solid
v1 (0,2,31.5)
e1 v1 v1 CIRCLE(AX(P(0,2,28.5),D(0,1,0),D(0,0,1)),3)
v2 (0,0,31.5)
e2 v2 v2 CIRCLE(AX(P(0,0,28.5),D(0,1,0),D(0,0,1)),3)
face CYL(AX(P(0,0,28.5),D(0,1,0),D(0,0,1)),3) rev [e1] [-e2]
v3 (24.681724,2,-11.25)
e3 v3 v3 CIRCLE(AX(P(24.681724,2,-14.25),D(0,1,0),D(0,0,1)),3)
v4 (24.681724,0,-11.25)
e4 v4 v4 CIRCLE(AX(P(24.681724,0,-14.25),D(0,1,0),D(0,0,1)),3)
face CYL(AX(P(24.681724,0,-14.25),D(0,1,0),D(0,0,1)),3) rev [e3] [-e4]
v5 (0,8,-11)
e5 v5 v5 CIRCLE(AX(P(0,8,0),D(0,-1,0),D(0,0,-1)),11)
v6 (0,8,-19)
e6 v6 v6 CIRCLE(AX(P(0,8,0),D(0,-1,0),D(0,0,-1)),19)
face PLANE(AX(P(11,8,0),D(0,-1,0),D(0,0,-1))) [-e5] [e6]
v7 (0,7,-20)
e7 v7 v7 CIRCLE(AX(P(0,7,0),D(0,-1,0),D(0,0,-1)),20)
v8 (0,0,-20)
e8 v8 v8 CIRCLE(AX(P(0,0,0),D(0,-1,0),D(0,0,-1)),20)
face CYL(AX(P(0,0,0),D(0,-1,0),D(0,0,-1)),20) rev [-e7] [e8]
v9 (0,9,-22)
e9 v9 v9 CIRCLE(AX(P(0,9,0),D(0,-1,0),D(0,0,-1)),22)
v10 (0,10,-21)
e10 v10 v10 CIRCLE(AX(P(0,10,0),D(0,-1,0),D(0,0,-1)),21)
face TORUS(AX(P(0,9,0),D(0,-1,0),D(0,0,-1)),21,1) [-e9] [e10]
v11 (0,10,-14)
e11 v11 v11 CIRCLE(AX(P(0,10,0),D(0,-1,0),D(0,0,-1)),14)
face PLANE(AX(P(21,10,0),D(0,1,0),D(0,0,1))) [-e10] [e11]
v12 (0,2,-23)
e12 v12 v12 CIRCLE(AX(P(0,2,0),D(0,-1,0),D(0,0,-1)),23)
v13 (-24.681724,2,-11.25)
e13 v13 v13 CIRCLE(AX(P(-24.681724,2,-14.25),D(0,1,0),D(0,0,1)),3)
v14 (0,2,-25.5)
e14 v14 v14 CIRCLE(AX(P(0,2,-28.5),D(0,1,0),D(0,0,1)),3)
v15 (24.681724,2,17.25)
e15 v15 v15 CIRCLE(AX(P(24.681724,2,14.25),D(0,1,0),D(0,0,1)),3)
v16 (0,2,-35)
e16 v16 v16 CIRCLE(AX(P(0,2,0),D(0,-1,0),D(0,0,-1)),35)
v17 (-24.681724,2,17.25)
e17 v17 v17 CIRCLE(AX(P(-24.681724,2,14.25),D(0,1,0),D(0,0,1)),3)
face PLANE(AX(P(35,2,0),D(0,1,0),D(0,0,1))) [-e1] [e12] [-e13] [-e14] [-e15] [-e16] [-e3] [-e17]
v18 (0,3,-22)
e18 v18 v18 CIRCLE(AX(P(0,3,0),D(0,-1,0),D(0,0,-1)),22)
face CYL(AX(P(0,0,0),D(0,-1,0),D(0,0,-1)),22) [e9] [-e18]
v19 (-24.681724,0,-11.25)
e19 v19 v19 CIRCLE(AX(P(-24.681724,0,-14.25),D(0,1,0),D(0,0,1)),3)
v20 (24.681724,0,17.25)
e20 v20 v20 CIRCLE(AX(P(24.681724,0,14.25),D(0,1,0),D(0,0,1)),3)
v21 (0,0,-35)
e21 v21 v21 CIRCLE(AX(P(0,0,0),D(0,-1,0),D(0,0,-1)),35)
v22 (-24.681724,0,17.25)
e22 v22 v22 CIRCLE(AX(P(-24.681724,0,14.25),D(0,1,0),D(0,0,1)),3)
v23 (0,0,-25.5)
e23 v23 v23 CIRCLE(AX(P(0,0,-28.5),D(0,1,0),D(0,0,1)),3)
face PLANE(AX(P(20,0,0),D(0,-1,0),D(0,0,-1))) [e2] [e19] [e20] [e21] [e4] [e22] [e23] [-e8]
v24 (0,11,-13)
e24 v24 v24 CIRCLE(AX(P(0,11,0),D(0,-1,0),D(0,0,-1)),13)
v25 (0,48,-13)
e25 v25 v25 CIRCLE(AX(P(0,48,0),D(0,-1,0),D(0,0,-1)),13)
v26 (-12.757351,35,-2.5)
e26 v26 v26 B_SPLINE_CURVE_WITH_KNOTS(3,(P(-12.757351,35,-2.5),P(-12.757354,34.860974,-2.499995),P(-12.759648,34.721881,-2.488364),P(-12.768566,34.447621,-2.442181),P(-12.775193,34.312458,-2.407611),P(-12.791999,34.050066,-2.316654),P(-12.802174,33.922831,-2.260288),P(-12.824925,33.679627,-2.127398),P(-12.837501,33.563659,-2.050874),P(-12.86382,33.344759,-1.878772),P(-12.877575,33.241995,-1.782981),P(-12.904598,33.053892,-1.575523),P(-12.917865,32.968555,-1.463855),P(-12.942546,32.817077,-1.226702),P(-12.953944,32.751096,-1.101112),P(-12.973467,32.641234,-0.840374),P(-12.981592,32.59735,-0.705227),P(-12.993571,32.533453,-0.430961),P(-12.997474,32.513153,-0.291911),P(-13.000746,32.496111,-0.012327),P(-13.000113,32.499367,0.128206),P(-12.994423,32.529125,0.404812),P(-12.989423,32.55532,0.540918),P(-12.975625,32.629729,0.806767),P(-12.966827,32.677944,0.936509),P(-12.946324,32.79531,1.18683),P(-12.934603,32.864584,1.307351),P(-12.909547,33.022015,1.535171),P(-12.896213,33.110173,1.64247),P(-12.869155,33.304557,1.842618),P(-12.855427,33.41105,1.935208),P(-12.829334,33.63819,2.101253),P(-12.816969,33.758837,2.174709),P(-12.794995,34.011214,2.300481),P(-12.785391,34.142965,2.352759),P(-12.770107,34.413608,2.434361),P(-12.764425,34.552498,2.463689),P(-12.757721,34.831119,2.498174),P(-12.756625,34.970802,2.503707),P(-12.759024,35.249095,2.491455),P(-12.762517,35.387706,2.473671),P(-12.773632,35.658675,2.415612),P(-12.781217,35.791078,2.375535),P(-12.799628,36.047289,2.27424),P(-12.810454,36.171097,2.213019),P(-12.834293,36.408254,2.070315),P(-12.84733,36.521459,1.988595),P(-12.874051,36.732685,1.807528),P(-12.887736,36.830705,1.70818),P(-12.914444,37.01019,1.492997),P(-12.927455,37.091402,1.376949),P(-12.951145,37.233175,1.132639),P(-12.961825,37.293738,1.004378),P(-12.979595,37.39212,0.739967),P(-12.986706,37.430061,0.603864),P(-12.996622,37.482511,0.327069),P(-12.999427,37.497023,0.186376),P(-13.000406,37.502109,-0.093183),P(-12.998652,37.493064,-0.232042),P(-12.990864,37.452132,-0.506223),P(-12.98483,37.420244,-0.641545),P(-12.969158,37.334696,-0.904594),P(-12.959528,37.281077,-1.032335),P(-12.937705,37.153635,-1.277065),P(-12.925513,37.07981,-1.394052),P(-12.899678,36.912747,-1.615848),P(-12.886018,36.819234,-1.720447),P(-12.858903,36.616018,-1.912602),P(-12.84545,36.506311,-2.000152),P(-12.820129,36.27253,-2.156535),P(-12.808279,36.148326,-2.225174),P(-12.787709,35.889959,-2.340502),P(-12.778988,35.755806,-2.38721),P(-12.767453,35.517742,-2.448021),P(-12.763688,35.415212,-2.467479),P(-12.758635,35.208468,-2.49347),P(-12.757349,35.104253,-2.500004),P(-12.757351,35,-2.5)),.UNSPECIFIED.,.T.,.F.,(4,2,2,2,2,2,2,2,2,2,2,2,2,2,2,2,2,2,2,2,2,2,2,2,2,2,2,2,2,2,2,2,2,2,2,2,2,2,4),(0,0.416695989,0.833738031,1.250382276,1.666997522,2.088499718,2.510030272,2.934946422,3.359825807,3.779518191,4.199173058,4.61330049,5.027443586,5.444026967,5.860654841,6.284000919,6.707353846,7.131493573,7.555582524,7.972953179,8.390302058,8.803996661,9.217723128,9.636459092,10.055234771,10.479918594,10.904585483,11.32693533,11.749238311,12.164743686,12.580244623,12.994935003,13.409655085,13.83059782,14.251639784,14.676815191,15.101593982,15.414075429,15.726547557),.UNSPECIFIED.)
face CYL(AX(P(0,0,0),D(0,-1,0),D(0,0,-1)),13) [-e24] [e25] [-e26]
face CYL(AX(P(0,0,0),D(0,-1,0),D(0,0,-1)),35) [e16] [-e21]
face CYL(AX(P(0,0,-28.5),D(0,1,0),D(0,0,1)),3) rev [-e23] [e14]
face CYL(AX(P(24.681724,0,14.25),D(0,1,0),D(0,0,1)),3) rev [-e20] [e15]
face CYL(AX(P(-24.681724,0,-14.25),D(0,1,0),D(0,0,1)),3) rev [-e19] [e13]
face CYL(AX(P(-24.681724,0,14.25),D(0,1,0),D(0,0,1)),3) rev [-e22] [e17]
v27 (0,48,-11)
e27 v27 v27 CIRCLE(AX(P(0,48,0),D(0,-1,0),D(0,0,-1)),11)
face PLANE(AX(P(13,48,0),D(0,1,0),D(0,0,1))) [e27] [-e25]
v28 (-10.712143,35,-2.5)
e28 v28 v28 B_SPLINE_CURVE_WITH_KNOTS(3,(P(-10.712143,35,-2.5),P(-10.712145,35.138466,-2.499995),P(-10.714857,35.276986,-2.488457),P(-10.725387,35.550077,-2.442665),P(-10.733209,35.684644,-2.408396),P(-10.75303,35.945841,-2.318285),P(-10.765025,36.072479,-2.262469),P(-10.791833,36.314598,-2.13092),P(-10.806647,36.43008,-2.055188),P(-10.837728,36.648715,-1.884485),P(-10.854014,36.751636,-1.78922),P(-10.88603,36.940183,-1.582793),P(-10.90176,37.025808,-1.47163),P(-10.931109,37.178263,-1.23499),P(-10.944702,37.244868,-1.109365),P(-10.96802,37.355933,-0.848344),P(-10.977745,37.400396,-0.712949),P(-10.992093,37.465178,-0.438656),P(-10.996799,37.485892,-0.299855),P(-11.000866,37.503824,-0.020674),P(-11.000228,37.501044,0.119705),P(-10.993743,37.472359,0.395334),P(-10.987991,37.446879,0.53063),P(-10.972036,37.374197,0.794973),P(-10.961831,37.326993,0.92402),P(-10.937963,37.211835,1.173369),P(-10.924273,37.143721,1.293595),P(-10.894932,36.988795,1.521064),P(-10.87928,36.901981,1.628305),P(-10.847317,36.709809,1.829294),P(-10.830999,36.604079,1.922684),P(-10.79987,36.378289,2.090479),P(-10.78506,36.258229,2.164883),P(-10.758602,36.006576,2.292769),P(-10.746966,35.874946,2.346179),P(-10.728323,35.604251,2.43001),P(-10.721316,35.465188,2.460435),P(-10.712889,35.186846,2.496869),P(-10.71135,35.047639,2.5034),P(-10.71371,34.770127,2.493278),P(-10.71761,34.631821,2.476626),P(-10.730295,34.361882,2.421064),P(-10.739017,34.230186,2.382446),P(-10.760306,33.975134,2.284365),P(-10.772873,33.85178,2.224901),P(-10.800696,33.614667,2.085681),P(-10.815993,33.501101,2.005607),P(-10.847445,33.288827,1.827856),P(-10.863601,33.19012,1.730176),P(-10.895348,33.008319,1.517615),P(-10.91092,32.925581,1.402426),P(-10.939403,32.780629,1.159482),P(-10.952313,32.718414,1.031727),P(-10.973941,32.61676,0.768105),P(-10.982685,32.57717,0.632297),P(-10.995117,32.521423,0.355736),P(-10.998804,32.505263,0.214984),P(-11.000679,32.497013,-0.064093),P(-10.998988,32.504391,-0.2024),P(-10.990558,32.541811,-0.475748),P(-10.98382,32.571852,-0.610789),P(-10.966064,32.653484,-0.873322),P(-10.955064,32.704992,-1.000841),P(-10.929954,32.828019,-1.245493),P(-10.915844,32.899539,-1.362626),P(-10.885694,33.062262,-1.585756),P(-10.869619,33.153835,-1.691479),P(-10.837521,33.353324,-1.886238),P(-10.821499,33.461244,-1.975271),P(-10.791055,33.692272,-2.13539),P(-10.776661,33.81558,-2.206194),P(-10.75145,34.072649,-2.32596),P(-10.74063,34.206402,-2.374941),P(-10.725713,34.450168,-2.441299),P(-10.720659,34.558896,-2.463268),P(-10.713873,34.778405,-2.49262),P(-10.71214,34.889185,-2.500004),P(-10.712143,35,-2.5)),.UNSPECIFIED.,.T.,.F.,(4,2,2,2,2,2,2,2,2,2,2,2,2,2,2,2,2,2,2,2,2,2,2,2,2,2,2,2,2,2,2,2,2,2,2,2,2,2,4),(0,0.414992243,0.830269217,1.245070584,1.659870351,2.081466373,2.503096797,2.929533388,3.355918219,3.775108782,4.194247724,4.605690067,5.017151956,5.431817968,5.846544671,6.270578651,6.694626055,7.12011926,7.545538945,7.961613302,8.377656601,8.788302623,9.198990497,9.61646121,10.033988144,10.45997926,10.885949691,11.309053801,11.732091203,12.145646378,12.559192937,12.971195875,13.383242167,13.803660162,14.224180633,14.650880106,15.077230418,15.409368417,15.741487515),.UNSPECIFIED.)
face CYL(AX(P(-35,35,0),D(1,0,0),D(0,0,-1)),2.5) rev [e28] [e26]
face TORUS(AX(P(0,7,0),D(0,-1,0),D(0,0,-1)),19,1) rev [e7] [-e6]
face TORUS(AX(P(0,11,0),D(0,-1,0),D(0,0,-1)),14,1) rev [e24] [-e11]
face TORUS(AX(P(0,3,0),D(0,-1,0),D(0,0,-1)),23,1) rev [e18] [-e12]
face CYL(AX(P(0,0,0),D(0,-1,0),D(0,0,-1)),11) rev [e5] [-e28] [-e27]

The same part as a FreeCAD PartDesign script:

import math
import FreeCAD as App
import Part
import Sketcher
from FreeCAD import Vector
Q = App.Units.Quantity

doc = App.newDocument("Part")
params = doc.addObject("Spreadsheet::Sheet", "Params")
for row, (alias, value) in enumerate([
    ("sketch1_radius", "1 mm"),
    ("sketch1_width", "15 mm"),
    ("sketch1_width2", "12 mm"),
    ("sketch1_width3", "7 mm"),
    ("sketch1_width4", "2 mm"),
    ("revolution_angle", "360 deg"),
    ("sketch2_diameter", "6 mm"),
    ("sketch3_diameter", "5 mm"),
], start=1):
    params.set(f"A{row}", alias)
    params.set(f"B{row}", "=" + value)
    params.setAlias(f"B{row}", alias)

body = doc.addObject("PartDesign::Body", "Body")

sketch1 = doc.addObject("Sketcher::SketchObject", "Sketch")
body.addObject(sketch1)
sketch1.AttachmentSupport = (doc.XY_Plane, [""])
sketch1.MapMode = "FlatFace"
sketch1.addGeometry([
    Part.LineSegment(Vector(20, 0, 0), Vector(35, 0, 0)),
    Part.LineSegment(Vector(35, 0, 0), Vector(35, 2, 0)),
    Part.LineSegment(Vector(35, 2, 0), Vector(23, 2, 0)),
    Part.ArcOfCircle(Part.Circle(Vector(23, 3, 0), Vector(0, 0, 1), 1), math.radians(-180), math.radians(-90)),
    Part.LineSegment(Vector(22, 3, 0), Vector(22, 9, 0)),
    Part.ArcOfCircle(Part.Circle(Vector(21, 9, 0), Vector(0, 0, 1), 1), math.radians(0), math.radians(90)),
    Part.LineSegment(Vector(21, 10, 0), Vector(14, 10, 0)),
    Part.ArcOfCircle(Part.Circle(Vector(14, 11, 0), Vector(0, 0, 1), 1), math.radians(-180), math.radians(-90)),
    Part.LineSegment(Vector(13, 11, 0), Vector(13, 48, 0)),
    Part.LineSegment(Vector(13, 48, 0), Vector(11, 48, 0)),
    Part.LineSegment(Vector(11, 48, 0), Vector(11, 8, 0)),
    Part.LineSegment(Vector(11, 8, 0), Vector(19, 8, 0)),
    Part.ArcOfCircle(Part.Circle(Vector(19, 7, 0), Vector(0, 0, 1), 1), math.radians(0), math.radians(90)),
    Part.LineSegment(Vector(20, 7, 0), Vector(20, 0, 0)),
], False)
sketch1.addConstraint([
    Sketcher.Constraint("Coincident", 0, 2, 1, 1),
    Sketcher.Constraint("Coincident", 1, 2, 2, 1),
    Sketcher.Constraint("Tangent", 2, 2, 3, 2),
    Sketcher.Constraint("Tangent", 3, 1, 4, 1),
    Sketcher.Constraint("Tangent", 4, 2, 5, 1),
    Sketcher.Constraint("Tangent", 5, 2, 6, 1),
    Sketcher.Constraint("Tangent", 6, 2, 7, 2),
    Sketcher.Constraint("Tangent", 7, 1, 8, 1),
    Sketcher.Constraint("Coincident", 8, 2, 9, 1),
    Sketcher.Constraint("Coincident", 9, 2, 10, 1),
    Sketcher.Constraint("Coincident", 10, 2, 11, 1),
    Sketcher.Constraint("Tangent", 11, 2, 12, 2),
    Sketcher.Constraint("Tangent", 12, 1, 13, 1),
    Sketcher.Constraint("Coincident", 13, 2, 0, 1),
    Sketcher.Constraint("Horizontal", 0),
    Sketcher.Constraint("Vertical", 1),
    Sketcher.Constraint("Horizontal", 2),
    Sketcher.Constraint("Vertical", 4),
    Sketcher.Constraint("Horizontal", 6),
    Sketcher.Constraint("Vertical", 8),
    Sketcher.Constraint("Horizontal", 9),
    Sketcher.Constraint("Vertical", 10),
    Sketcher.Constraint("Horizontal", 11),
    Sketcher.Constraint("Vertical", 13),
    Sketcher.Constraint("Equal", 3, 5),
    Sketcher.Constraint("Equal", 5, 7),
    Sketcher.Constraint("Equal", 7, 12),
    Sketcher.Constraint("PointOnObject", 0, 2, -1),
    Sketcher.Constraint("Equal", 9, 1),
    Sketcher.Constraint("Equal", 6, 13),
    Sketcher.Constraint("Radius", 3, Q("1 mm")),
    Sketcher.Constraint("DistanceX", 0, 1, 0, 2, Q("15 mm")),
    Sketcher.Constraint("DistanceX", 2, 2, 2, 1, Q("12 mm")),
    Sketcher.Constraint("DistanceX", 6, 2, 6, 1, Q("7 mm")),
    Sketcher.Constraint("DistanceX", 9, 2, 9, 1, Q("2 mm")),
    Sketcher.Constraint("DistanceY", 4, 1, 4, 2, Q("6 mm")),
    Sketcher.Constraint("DistanceY", 8, 1, 8, 2, Q("37 mm")),
    Sketcher.Constraint("DistanceX", -1, 1, 3, 3, Q("23 mm")),
])
sketch1.setExpression("Constraints[30]", "Params.sketch1_radius")
sketch1.setExpression("Constraints[31]", "Params.sketch1_width")
sketch1.setExpression("Constraints[32]", "Params.sketch1_width2")
sketch1.setExpression("Constraints[33]", "Params.sketch1_width3")
sketch1.setExpression("Constraints[34]", "Params.sketch1_width4")
revolution = doc.addObject("PartDesign::Revolution", "Revolution")
body.addObject(revolution)
revolution.Profile = sketch1
revolution.ReferenceAxis = (sketch1, ["V_Axis"])
revolution.setExpression("Angle", "Params.revolution_angle")

sketch2 = doc.addObject("Sketcher::SketchObject", "Sketch001")
body.addObject(sketch2)
sketch2.AttachmentSupport = (doc.XZ_Plane, [""])
sketch2.MapMode = "FlatFace"
sketch2.AttachmentOffset = App.Placement(Vector(0, 0, -2), App.Rotation())
sketch2.addGeometry([
    Part.Circle(Vector(0, -28.5, 0), Vector(0, 0, 1), 3),
    Part.Circle(Vector(24.681724, -14.25, 0), Vector(0, 0, 1), 3),
    Part.Circle(Vector(24.681724, 14.25, 0), Vector(0, 0, 1), 3),
    Part.Circle(Vector(0, 28.5, 0), Vector(0, 0, 1), 3),
    Part.Circle(Vector(-24.681724, 14.25, 0), Vector(0, 0, 1), 3),
    Part.Circle(Vector(-24.681724, -14.25, 0), Vector(0, 0, 1), 3),
], False)
sketch2.addConstraint([
    Sketcher.Constraint("Equal", 0, 1),
    Sketcher.Constraint("Equal", 1, 2),
    Sketcher.Constraint("Equal", 2, 3),
    Sketcher.Constraint("Equal", 3, 4),
    Sketcher.Constraint("Equal", 4, 5),
    Sketcher.Constraint("Symmetric", 0, 3, 3, 3, -1, 1),
    Sketcher.Constraint("Symmetric", 1, 3, 4, 3, -1, 1),
    Sketcher.Constraint("Symmetric", 2, 3, 5, 3, -1, 1),
    Sketcher.Constraint("Symmetric", 2, 3, 4, 3, -2),
    Sketcher.Constraint("PointOnObject", 0, 3, -2),
    Sketcher.Constraint("Diameter", 0, Q("6 mm")),
    Sketcher.Constraint("DistanceY", 0, 3, 3, 3, Q("57 mm")),
    Sketcher.Constraint("DistanceY", 1, 3, 2, 3, Q("28.5 mm")),
    Sketcher.Constraint("DistanceX", 4, 3, 2, 3, Q("49.363448 mm")),
])
sketch2.setExpression("Constraints[10]", "Params.sketch2_diameter")
pocket1 = doc.addObject("PartDesign::Pocket", "Pocket")
body.addObject(pocket1)
pocket1.Profile = sketch2
pocket1.Type = "ThroughAll"
pocket1.Reversed = True

sketch3 = doc.addObject("Sketcher::SketchObject", "Sketch002")
body.addObject(sketch3)
sketch3.AttachmentSupport = (doc.YZ_Plane, [""])
sketch3.MapMode = "FlatFace"
sketch3.addGeometry(Part.Circle(Vector(35, 0, 0), Vector(0, 0, 1), 2.5), False)
sketch3.addConstraint([
    Sketcher.Constraint("PointOnObject", 0, 3, -1),
    Sketcher.Constraint("Diameter", 0, Q("5 mm")),
    Sketcher.Constraint("DistanceX", -1, 1, 0, 3, Q("35 mm")),
])
sketch3.setExpression("Constraints[1]", "Params.sketch3_diameter")
pocket2 = doc.addObject("PartDesign::Pocket", "Pocket001")
body.addObject(pocket2)
pocket2.Profile = sketch3
pocket2.Type = "ThroughAll"

doc.recompute()
